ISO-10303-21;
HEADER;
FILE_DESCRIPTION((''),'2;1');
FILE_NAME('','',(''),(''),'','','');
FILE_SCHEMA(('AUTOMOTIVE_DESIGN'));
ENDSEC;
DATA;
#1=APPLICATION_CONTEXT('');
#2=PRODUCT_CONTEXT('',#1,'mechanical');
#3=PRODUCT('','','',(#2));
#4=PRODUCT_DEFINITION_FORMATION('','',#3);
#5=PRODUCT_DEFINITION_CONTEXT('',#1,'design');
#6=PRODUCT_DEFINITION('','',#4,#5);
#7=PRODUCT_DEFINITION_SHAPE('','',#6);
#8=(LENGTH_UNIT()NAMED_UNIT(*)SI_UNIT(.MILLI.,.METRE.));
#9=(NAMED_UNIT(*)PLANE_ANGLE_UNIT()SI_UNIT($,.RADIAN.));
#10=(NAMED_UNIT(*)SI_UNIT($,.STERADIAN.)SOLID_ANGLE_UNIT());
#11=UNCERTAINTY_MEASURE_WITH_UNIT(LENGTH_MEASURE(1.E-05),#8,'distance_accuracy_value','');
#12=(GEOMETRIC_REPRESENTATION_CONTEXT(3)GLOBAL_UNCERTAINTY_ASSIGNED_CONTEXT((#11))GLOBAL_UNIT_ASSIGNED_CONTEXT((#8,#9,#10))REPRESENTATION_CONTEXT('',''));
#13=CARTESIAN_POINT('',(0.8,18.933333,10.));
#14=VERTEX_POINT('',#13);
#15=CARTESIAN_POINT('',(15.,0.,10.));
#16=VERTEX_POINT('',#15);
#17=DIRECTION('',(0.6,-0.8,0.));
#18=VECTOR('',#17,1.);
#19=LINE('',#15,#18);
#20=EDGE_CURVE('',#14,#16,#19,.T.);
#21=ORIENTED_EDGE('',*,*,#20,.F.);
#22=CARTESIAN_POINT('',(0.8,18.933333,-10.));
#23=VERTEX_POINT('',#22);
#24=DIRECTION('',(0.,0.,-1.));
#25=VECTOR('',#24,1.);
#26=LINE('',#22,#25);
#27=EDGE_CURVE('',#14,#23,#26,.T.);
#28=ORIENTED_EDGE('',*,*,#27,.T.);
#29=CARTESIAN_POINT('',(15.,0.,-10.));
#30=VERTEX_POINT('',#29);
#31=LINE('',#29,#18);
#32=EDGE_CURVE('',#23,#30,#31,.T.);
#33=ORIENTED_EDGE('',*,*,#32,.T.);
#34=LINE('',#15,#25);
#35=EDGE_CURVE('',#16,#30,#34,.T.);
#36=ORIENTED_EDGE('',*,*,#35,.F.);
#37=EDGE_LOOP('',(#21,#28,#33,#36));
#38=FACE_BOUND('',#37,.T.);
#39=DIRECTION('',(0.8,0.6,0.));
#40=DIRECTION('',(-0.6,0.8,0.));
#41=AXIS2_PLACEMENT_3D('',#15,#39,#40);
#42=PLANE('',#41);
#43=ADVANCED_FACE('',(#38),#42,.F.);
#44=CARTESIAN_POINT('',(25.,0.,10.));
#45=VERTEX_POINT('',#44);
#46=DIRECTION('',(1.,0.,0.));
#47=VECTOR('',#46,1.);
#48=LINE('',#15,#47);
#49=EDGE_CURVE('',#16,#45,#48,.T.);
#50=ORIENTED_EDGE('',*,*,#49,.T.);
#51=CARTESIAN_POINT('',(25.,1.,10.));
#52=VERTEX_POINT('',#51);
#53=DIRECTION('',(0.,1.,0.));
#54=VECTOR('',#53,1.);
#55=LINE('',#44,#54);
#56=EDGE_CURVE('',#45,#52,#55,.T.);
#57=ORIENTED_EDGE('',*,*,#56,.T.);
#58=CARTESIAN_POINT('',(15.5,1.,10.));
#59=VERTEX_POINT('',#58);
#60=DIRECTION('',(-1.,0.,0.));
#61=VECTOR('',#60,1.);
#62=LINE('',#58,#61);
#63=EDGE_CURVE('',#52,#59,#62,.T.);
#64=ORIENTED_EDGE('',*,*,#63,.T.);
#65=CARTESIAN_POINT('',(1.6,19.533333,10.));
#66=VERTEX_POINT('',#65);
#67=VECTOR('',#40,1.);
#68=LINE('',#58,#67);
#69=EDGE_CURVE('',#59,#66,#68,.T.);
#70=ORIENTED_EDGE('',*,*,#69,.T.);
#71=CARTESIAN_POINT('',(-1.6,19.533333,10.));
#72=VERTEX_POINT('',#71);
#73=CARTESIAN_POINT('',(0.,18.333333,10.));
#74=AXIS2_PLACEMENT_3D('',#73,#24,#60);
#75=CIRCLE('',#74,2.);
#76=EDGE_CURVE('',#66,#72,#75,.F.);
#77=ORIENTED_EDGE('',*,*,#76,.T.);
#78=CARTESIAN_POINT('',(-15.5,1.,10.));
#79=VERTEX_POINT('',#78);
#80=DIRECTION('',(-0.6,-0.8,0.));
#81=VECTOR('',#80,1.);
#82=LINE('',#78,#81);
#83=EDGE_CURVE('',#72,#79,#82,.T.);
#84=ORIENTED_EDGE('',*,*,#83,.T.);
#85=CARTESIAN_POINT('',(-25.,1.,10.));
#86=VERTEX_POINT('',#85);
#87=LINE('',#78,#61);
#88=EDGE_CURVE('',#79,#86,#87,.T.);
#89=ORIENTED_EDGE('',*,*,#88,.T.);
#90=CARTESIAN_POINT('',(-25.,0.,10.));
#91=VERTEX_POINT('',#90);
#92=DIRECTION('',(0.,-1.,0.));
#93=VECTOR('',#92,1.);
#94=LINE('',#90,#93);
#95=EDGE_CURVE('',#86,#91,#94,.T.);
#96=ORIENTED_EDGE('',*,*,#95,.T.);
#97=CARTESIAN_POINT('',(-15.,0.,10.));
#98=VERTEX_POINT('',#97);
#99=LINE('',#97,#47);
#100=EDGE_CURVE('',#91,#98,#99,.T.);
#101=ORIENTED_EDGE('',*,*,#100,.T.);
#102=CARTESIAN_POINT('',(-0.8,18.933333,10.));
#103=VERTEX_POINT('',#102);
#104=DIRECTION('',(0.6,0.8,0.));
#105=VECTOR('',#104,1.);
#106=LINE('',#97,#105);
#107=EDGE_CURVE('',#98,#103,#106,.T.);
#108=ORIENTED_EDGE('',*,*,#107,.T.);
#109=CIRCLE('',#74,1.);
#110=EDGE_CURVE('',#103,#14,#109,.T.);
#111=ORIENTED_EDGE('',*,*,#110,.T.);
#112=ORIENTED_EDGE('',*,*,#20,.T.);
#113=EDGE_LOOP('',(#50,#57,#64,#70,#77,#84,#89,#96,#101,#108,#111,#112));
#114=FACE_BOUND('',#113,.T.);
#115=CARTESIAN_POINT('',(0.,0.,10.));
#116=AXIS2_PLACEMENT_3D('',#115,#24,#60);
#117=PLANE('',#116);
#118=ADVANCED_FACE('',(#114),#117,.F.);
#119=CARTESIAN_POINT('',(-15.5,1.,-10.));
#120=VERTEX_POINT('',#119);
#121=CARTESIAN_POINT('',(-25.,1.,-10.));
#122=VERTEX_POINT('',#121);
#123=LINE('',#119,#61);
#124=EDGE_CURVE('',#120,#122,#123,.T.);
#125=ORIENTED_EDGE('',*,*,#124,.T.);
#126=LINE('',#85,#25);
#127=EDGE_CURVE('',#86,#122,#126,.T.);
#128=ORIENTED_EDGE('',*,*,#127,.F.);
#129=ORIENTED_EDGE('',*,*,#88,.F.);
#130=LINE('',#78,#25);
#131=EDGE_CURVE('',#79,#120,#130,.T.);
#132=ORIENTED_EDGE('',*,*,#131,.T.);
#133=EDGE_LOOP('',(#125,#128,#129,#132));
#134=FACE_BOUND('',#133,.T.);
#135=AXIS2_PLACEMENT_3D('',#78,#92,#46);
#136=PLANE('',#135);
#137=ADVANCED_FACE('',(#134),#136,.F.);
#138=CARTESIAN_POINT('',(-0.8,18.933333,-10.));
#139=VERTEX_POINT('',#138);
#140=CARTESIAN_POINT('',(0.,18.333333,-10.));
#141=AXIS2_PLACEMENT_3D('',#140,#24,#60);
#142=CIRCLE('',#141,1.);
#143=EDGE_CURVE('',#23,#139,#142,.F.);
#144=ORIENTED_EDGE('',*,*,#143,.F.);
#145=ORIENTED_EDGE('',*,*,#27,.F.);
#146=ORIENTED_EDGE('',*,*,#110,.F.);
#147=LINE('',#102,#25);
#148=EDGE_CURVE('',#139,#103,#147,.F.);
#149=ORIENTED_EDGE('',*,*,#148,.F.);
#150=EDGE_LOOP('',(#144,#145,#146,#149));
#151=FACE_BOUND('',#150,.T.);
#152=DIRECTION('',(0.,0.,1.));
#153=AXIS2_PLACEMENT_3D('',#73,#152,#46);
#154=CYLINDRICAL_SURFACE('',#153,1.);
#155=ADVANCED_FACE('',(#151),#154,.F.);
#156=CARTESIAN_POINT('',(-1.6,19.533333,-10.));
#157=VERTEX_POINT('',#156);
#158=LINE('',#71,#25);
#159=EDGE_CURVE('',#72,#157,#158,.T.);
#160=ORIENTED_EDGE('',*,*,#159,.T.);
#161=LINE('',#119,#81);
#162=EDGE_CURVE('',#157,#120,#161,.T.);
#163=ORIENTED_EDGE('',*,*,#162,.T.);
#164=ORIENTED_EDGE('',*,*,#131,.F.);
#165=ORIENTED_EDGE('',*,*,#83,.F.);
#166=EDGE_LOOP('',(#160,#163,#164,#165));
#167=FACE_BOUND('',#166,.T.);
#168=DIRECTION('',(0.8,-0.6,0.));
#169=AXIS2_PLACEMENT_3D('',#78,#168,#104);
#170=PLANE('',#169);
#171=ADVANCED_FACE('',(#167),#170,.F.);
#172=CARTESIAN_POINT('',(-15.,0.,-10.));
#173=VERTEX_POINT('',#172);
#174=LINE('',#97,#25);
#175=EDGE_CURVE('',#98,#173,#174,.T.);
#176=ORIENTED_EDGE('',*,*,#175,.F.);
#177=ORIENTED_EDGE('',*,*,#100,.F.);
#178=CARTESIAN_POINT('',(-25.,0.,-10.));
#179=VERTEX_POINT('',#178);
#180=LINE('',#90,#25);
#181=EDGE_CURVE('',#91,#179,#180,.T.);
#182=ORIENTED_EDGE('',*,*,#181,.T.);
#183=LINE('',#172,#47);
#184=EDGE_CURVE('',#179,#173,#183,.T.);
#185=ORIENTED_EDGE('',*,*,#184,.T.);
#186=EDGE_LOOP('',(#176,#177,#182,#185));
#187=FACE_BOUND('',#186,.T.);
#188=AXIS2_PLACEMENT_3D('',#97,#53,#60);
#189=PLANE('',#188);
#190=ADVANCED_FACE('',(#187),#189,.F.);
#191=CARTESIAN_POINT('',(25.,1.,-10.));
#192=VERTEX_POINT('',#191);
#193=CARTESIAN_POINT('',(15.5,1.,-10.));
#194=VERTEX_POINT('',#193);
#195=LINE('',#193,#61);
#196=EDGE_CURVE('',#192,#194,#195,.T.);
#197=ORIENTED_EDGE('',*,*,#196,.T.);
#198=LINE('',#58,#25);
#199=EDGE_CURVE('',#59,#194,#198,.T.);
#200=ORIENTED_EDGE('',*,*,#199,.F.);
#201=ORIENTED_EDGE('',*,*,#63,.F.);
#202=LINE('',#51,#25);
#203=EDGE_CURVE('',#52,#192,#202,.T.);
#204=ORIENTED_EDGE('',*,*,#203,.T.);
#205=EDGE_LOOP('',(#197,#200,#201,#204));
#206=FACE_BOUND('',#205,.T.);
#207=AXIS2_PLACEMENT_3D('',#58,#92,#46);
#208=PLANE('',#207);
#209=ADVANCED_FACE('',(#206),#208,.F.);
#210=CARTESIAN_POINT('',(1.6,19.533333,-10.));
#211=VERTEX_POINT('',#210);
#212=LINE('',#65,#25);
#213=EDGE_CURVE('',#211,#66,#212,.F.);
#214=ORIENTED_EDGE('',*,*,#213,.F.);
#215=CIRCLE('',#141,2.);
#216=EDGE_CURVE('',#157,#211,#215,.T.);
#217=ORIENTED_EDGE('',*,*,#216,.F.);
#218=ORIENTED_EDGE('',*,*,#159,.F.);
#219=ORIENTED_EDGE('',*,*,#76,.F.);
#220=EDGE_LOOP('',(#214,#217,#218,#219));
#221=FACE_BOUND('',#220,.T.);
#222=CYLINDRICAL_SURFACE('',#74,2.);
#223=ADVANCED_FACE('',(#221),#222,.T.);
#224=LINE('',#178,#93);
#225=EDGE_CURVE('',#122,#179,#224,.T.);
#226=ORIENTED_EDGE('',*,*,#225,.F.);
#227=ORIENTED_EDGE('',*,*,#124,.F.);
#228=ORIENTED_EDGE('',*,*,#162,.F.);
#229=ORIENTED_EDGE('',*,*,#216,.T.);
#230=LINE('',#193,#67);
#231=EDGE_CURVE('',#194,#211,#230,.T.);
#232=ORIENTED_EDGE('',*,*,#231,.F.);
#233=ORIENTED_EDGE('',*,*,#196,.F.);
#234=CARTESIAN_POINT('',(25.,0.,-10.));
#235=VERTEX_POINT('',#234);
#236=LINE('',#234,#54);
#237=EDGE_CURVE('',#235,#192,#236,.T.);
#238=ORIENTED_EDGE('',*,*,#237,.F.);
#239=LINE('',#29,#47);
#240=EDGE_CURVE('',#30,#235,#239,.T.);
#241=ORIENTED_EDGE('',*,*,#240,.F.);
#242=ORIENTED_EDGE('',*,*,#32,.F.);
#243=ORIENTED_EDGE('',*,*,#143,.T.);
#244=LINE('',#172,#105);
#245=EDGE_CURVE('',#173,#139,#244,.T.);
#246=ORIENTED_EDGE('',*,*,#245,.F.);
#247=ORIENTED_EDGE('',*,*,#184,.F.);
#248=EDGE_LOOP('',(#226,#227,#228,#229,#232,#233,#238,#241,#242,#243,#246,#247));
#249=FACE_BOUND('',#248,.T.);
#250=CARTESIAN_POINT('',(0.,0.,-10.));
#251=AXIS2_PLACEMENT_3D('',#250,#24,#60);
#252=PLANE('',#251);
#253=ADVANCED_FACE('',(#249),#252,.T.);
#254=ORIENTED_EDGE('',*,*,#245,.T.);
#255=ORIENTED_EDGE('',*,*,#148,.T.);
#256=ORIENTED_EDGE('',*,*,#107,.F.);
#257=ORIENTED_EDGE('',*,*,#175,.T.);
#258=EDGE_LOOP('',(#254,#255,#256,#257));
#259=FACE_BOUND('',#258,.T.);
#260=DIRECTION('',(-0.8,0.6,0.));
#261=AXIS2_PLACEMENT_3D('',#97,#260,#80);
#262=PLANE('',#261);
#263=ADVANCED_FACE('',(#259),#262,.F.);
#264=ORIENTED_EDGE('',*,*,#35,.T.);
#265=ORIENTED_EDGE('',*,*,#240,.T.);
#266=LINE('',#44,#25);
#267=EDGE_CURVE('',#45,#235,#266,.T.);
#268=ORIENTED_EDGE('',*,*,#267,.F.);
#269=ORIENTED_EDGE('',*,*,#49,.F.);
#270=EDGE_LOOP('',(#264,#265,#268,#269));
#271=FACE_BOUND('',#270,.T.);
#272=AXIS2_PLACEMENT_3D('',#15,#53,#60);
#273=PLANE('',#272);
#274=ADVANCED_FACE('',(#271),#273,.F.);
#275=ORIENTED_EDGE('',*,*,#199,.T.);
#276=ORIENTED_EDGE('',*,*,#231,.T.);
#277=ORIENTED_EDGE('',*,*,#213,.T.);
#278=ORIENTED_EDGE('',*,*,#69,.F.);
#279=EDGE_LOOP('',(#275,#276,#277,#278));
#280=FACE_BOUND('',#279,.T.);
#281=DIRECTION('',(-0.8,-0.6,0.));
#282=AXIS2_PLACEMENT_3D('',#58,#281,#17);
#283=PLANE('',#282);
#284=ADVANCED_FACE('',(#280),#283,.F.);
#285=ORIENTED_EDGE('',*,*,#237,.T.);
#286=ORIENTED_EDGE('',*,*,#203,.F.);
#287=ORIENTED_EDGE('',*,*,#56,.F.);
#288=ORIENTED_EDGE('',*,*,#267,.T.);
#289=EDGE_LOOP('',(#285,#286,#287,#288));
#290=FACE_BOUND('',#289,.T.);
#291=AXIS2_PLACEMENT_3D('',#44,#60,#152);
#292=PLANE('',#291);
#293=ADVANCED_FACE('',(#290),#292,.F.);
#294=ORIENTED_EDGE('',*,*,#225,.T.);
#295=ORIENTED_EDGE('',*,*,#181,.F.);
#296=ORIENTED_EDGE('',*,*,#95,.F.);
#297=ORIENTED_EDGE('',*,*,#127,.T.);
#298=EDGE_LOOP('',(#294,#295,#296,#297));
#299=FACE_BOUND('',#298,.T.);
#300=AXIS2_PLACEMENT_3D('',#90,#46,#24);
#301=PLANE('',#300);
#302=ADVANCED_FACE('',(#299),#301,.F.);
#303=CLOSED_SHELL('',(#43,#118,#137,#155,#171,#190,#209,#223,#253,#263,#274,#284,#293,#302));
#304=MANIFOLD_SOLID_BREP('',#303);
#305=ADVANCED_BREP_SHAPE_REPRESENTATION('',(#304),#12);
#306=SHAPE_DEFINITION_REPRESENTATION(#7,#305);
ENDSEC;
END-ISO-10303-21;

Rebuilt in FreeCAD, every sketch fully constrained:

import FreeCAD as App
import Part
import Sketcher
from FreeCAD import Vector
Q = App.Units.Quantity


def edges_at(feature, points):
    """Names of the edges that pass closest to the given points."""
    edges = feature.Shape.Edges
    near = lambda p: min(range(len(edges)), key=lambda i: edges[i].distToShape(Part.Vertex(*p))[0])
    return sorted({f"Edge{near(p) + 1}" for p in points})


def add_polygon(sketch, points):
    """Adds a closed chain of lines whose ends are joined by coincident constraints."""
    first, n = sketch.GeometryCount, len(points)
    for a, b in zip(points, points[1:] + points[:1]):
        sketch.addGeometry(Part.LineSegment(App.Vector(*a, 0), App.Vector(*b, 0)), False)
    for i in range(n):
        sketch.addConstraint(Sketcher.Constraint("Coincident", first + i, 2, first + (i + 1) % n, 1))

doc = App.newDocument("Part")
body = doc.addObject("PartDesign::Body", "Body")

sketch1 = body.newObject("Sketcher::SketchObject", "Sketch")
sketch1.AttachmentSupport = (doc.getObject("XY_Plane"), [""])
sketch1.MapMode = "FlatFace"
add_polygon(sketch1, [(-15, 0), (0, 20), (15, 0), (25, 0), (25, 1), (15.5, 1), (0, 21.7), (-15.5, 1), (-25, 1), (-25, 0)])
sketch1.addConstraint([
    Sketcher.Constraint("Horizontal", 2),
    Sketcher.Constraint("Vertical", 3),
    Sketcher.Constraint("Horizontal", 4),
    Sketcher.Constraint("Horizontal", 7),
    Sketcher.Constraint("Vertical", 8),
    Sketcher.Constraint("Horizontal", 9),
    Sketcher.Constraint("Symmetric", 2, 2, 8, 2, -1, 1),
    Sketcher.Constraint("Symmetric", 4, 2, 6, 2, -2),
    Sketcher.Constraint("Symmetric", 1, 2, 9, 2, -2),
    Sketcher.Constraint("PointOnObject", 0, 2, -2),
    Sketcher.Constraint("PointOnObject", 5, 2, -2),
    Sketcher.Constraint("Parallel", 1, 5),
    Sketcher.Constraint("DistanceX", 2, 1, 2, 2, Q("10 mm")),
    Sketcher.Constraint("DistanceY", 3, 1, 3, 2, Q("1 mm")),
    Sketcher.Constraint("Distance", 0, Q("25 mm")),
    Sketcher.Constraint("DistanceX", 4, 2, 4, 1, Q("9.5 mm")),
    Sketcher.Constraint("DistanceY", -1, 1, 0, 2, Q("20 mm")),
])
pad1 = body.newObject("PartDesign::Pad", "Pad")
pad1.Profile = sketch1
pad1.Length = 20
pad1.Midplane = True
doc.recompute()

fillet = body.newObject("PartDesign::Fillet", "Fillet")
fillet.Base = (pad1, edges_at(pad1, [(0, 20, 0)]))
fillet.Radius = 1
doc.recompute()

fillet2 = body.newObject("PartDesign::Fillet", "Fillet001")
fillet2.Base = (fillet, edges_at(fillet, [(0, 21.667, 0)]))
fillet2.Radius = 2

doc.recompute()
